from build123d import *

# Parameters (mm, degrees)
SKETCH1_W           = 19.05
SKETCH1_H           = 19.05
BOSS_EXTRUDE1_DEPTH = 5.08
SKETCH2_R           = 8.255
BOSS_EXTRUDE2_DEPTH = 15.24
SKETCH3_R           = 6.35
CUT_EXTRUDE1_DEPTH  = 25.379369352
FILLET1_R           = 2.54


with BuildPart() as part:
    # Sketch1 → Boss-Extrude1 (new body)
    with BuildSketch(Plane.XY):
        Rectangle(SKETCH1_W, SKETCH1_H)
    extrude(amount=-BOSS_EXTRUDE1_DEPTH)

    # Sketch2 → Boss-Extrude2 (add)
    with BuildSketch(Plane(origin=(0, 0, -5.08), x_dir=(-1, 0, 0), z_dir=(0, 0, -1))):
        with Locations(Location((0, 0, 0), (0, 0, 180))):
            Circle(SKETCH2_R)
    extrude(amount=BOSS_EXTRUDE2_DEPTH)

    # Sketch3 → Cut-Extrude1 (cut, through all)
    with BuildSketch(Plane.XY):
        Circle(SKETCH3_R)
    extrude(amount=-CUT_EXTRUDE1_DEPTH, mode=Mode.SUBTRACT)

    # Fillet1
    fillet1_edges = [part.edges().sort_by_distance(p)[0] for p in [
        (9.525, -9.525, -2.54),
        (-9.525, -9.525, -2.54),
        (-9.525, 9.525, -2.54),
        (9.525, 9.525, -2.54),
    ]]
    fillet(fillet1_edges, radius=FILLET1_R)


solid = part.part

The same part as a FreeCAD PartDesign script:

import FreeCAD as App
import Part
import Sketcher
Q = App.Units.Quantity


def edges_at(feature, points):
    """Names of the edges that pass closest to the given points."""
    edges = feature.Shape.Edges
    near = lambda p: min(range(len(edges)), key=lambda i: edges[i].distToShape(Part.Vertex(*p))[0])
    return sorted({f"Edge{near(p) + 1}" for p in points})

doc = App.newDocument("Part")
body = doc.addObject("PartDesign::Body", "Body")

# Sketch on XY plane
sketch1 = body.newObject("Sketcher::SketchObject", "Sketch")
sketch1.AttachmentSupport = (doc.getObject("XY_Plane"), [""])
sketch1.MapMode = "FlatFace"
sketch1.addGeometry([
    Part.LineSegment(App.Vector(-10, 10, 0), App.Vector(-10, -10, 0)),
    Part.LineSegment(App.Vector(-10, -10, 0), App.Vector(10, -10, 0)),
    Part.LineSegment(App.Vector(10, -10, 0), App.Vector(10, 10, 0)),
    Part.LineSegment(App.Vector(10, 10, 0), App.Vector(-10, 10, 0)),
], False)
sketch1.addConstraint([
    Sketcher.Constraint("Coincident", 0, 2, 1, 1),
    Sketcher.Constraint("Coincident", 1, 2, 2, 1),
    Sketcher.Constraint("Coincident", 2, 2, 3, 1),
    Sketcher.Constraint("Coincident", 3, 2, 0, 1),
    Sketcher.Constraint("Vertical", 0),
    Sketcher.Constraint("Horizontal", 1),
    Sketcher.Constraint("Vertical", 2),
    Sketcher.Constraint("Horizontal", 3),
    Sketcher.Constraint("Symmetric", 0, 2, 2, 2, -1, 1),
    Sketcher.Constraint("Equal", 3, 0),
    Sketcher.Constraint("DistanceX", 1, 1, 1, 2, Q("0.75 in")),
])
pad1 = body.newObject("PartDesign::Pad", "Pad")
pad1.Profile = sketch1
pad1.Length = Q("0.2 in")
pad1.Reversed = True

# Sketch on XY plane
sketch2 = body.newObject("Sketcher::SketchObject", "Sketch001")
sketch2.AttachmentSupport = (doc.getObject("XY_Plane"), [""])
sketch2.MapMode = "FlatFace"
sketch2.AttachmentOffset = App.Placement(App.Vector(0, 0, -0.2 * 25.4), App.Rotation())
sketch2.addGeometry(Part.Circle(App.Vector(0, 0, 0), App.Vector(0, 0, 1), 8), False)
sketch2.addConstraint([
    Sketcher.Constraint("Coincident", 0, 3, -1, 1),
    Sketcher.Constraint("Diameter", 0, Q("0.65 in")),
])
pad2 = body.newObject("PartDesign::Pad", "Pad001")
pad2.Profile = sketch2
pad2.Length = Q("0.6 in")
pad2.Reversed = True

# Sketch on XY plane
sketch3 = body.newObject("Sketcher::SketchObject", "Sketch002")
sketch3.AttachmentSupport = (doc.getObject("XY_Plane"), [""])
sketch3.MapMode = "FlatFace"
sketch3.addGeometry(Part.Circle(App.Vector(0, 0, 0), App.Vector(0, 0, 1), 6), False)
sketch3.addConstraint([
    Sketcher.Constraint("Coincident", 0, 3, -1, 1),
    Sketcher.Constraint("Diameter", 0, Q("0.5 in")),
])
pocket1 = body.newObject("PartDesign::Pocket", "Pocket")
pocket1.Profile = sketch3
pocket1.Type = "ThroughAll"
doc.recompute()

fillet = body.newObject("PartDesign::Fillet", "Fillet")
fillet.Base = (pocket1, edges_at(pocket1, [
    (9.525, -9.525, -2.54),
    (-9.525, -9.525, -2.54),
    (-9.525, 9.525, -2.54),
    (9.525, 9.525, -2.54),
]))
fillet.Radius = Q("0.1 in")

doc.recompute()
